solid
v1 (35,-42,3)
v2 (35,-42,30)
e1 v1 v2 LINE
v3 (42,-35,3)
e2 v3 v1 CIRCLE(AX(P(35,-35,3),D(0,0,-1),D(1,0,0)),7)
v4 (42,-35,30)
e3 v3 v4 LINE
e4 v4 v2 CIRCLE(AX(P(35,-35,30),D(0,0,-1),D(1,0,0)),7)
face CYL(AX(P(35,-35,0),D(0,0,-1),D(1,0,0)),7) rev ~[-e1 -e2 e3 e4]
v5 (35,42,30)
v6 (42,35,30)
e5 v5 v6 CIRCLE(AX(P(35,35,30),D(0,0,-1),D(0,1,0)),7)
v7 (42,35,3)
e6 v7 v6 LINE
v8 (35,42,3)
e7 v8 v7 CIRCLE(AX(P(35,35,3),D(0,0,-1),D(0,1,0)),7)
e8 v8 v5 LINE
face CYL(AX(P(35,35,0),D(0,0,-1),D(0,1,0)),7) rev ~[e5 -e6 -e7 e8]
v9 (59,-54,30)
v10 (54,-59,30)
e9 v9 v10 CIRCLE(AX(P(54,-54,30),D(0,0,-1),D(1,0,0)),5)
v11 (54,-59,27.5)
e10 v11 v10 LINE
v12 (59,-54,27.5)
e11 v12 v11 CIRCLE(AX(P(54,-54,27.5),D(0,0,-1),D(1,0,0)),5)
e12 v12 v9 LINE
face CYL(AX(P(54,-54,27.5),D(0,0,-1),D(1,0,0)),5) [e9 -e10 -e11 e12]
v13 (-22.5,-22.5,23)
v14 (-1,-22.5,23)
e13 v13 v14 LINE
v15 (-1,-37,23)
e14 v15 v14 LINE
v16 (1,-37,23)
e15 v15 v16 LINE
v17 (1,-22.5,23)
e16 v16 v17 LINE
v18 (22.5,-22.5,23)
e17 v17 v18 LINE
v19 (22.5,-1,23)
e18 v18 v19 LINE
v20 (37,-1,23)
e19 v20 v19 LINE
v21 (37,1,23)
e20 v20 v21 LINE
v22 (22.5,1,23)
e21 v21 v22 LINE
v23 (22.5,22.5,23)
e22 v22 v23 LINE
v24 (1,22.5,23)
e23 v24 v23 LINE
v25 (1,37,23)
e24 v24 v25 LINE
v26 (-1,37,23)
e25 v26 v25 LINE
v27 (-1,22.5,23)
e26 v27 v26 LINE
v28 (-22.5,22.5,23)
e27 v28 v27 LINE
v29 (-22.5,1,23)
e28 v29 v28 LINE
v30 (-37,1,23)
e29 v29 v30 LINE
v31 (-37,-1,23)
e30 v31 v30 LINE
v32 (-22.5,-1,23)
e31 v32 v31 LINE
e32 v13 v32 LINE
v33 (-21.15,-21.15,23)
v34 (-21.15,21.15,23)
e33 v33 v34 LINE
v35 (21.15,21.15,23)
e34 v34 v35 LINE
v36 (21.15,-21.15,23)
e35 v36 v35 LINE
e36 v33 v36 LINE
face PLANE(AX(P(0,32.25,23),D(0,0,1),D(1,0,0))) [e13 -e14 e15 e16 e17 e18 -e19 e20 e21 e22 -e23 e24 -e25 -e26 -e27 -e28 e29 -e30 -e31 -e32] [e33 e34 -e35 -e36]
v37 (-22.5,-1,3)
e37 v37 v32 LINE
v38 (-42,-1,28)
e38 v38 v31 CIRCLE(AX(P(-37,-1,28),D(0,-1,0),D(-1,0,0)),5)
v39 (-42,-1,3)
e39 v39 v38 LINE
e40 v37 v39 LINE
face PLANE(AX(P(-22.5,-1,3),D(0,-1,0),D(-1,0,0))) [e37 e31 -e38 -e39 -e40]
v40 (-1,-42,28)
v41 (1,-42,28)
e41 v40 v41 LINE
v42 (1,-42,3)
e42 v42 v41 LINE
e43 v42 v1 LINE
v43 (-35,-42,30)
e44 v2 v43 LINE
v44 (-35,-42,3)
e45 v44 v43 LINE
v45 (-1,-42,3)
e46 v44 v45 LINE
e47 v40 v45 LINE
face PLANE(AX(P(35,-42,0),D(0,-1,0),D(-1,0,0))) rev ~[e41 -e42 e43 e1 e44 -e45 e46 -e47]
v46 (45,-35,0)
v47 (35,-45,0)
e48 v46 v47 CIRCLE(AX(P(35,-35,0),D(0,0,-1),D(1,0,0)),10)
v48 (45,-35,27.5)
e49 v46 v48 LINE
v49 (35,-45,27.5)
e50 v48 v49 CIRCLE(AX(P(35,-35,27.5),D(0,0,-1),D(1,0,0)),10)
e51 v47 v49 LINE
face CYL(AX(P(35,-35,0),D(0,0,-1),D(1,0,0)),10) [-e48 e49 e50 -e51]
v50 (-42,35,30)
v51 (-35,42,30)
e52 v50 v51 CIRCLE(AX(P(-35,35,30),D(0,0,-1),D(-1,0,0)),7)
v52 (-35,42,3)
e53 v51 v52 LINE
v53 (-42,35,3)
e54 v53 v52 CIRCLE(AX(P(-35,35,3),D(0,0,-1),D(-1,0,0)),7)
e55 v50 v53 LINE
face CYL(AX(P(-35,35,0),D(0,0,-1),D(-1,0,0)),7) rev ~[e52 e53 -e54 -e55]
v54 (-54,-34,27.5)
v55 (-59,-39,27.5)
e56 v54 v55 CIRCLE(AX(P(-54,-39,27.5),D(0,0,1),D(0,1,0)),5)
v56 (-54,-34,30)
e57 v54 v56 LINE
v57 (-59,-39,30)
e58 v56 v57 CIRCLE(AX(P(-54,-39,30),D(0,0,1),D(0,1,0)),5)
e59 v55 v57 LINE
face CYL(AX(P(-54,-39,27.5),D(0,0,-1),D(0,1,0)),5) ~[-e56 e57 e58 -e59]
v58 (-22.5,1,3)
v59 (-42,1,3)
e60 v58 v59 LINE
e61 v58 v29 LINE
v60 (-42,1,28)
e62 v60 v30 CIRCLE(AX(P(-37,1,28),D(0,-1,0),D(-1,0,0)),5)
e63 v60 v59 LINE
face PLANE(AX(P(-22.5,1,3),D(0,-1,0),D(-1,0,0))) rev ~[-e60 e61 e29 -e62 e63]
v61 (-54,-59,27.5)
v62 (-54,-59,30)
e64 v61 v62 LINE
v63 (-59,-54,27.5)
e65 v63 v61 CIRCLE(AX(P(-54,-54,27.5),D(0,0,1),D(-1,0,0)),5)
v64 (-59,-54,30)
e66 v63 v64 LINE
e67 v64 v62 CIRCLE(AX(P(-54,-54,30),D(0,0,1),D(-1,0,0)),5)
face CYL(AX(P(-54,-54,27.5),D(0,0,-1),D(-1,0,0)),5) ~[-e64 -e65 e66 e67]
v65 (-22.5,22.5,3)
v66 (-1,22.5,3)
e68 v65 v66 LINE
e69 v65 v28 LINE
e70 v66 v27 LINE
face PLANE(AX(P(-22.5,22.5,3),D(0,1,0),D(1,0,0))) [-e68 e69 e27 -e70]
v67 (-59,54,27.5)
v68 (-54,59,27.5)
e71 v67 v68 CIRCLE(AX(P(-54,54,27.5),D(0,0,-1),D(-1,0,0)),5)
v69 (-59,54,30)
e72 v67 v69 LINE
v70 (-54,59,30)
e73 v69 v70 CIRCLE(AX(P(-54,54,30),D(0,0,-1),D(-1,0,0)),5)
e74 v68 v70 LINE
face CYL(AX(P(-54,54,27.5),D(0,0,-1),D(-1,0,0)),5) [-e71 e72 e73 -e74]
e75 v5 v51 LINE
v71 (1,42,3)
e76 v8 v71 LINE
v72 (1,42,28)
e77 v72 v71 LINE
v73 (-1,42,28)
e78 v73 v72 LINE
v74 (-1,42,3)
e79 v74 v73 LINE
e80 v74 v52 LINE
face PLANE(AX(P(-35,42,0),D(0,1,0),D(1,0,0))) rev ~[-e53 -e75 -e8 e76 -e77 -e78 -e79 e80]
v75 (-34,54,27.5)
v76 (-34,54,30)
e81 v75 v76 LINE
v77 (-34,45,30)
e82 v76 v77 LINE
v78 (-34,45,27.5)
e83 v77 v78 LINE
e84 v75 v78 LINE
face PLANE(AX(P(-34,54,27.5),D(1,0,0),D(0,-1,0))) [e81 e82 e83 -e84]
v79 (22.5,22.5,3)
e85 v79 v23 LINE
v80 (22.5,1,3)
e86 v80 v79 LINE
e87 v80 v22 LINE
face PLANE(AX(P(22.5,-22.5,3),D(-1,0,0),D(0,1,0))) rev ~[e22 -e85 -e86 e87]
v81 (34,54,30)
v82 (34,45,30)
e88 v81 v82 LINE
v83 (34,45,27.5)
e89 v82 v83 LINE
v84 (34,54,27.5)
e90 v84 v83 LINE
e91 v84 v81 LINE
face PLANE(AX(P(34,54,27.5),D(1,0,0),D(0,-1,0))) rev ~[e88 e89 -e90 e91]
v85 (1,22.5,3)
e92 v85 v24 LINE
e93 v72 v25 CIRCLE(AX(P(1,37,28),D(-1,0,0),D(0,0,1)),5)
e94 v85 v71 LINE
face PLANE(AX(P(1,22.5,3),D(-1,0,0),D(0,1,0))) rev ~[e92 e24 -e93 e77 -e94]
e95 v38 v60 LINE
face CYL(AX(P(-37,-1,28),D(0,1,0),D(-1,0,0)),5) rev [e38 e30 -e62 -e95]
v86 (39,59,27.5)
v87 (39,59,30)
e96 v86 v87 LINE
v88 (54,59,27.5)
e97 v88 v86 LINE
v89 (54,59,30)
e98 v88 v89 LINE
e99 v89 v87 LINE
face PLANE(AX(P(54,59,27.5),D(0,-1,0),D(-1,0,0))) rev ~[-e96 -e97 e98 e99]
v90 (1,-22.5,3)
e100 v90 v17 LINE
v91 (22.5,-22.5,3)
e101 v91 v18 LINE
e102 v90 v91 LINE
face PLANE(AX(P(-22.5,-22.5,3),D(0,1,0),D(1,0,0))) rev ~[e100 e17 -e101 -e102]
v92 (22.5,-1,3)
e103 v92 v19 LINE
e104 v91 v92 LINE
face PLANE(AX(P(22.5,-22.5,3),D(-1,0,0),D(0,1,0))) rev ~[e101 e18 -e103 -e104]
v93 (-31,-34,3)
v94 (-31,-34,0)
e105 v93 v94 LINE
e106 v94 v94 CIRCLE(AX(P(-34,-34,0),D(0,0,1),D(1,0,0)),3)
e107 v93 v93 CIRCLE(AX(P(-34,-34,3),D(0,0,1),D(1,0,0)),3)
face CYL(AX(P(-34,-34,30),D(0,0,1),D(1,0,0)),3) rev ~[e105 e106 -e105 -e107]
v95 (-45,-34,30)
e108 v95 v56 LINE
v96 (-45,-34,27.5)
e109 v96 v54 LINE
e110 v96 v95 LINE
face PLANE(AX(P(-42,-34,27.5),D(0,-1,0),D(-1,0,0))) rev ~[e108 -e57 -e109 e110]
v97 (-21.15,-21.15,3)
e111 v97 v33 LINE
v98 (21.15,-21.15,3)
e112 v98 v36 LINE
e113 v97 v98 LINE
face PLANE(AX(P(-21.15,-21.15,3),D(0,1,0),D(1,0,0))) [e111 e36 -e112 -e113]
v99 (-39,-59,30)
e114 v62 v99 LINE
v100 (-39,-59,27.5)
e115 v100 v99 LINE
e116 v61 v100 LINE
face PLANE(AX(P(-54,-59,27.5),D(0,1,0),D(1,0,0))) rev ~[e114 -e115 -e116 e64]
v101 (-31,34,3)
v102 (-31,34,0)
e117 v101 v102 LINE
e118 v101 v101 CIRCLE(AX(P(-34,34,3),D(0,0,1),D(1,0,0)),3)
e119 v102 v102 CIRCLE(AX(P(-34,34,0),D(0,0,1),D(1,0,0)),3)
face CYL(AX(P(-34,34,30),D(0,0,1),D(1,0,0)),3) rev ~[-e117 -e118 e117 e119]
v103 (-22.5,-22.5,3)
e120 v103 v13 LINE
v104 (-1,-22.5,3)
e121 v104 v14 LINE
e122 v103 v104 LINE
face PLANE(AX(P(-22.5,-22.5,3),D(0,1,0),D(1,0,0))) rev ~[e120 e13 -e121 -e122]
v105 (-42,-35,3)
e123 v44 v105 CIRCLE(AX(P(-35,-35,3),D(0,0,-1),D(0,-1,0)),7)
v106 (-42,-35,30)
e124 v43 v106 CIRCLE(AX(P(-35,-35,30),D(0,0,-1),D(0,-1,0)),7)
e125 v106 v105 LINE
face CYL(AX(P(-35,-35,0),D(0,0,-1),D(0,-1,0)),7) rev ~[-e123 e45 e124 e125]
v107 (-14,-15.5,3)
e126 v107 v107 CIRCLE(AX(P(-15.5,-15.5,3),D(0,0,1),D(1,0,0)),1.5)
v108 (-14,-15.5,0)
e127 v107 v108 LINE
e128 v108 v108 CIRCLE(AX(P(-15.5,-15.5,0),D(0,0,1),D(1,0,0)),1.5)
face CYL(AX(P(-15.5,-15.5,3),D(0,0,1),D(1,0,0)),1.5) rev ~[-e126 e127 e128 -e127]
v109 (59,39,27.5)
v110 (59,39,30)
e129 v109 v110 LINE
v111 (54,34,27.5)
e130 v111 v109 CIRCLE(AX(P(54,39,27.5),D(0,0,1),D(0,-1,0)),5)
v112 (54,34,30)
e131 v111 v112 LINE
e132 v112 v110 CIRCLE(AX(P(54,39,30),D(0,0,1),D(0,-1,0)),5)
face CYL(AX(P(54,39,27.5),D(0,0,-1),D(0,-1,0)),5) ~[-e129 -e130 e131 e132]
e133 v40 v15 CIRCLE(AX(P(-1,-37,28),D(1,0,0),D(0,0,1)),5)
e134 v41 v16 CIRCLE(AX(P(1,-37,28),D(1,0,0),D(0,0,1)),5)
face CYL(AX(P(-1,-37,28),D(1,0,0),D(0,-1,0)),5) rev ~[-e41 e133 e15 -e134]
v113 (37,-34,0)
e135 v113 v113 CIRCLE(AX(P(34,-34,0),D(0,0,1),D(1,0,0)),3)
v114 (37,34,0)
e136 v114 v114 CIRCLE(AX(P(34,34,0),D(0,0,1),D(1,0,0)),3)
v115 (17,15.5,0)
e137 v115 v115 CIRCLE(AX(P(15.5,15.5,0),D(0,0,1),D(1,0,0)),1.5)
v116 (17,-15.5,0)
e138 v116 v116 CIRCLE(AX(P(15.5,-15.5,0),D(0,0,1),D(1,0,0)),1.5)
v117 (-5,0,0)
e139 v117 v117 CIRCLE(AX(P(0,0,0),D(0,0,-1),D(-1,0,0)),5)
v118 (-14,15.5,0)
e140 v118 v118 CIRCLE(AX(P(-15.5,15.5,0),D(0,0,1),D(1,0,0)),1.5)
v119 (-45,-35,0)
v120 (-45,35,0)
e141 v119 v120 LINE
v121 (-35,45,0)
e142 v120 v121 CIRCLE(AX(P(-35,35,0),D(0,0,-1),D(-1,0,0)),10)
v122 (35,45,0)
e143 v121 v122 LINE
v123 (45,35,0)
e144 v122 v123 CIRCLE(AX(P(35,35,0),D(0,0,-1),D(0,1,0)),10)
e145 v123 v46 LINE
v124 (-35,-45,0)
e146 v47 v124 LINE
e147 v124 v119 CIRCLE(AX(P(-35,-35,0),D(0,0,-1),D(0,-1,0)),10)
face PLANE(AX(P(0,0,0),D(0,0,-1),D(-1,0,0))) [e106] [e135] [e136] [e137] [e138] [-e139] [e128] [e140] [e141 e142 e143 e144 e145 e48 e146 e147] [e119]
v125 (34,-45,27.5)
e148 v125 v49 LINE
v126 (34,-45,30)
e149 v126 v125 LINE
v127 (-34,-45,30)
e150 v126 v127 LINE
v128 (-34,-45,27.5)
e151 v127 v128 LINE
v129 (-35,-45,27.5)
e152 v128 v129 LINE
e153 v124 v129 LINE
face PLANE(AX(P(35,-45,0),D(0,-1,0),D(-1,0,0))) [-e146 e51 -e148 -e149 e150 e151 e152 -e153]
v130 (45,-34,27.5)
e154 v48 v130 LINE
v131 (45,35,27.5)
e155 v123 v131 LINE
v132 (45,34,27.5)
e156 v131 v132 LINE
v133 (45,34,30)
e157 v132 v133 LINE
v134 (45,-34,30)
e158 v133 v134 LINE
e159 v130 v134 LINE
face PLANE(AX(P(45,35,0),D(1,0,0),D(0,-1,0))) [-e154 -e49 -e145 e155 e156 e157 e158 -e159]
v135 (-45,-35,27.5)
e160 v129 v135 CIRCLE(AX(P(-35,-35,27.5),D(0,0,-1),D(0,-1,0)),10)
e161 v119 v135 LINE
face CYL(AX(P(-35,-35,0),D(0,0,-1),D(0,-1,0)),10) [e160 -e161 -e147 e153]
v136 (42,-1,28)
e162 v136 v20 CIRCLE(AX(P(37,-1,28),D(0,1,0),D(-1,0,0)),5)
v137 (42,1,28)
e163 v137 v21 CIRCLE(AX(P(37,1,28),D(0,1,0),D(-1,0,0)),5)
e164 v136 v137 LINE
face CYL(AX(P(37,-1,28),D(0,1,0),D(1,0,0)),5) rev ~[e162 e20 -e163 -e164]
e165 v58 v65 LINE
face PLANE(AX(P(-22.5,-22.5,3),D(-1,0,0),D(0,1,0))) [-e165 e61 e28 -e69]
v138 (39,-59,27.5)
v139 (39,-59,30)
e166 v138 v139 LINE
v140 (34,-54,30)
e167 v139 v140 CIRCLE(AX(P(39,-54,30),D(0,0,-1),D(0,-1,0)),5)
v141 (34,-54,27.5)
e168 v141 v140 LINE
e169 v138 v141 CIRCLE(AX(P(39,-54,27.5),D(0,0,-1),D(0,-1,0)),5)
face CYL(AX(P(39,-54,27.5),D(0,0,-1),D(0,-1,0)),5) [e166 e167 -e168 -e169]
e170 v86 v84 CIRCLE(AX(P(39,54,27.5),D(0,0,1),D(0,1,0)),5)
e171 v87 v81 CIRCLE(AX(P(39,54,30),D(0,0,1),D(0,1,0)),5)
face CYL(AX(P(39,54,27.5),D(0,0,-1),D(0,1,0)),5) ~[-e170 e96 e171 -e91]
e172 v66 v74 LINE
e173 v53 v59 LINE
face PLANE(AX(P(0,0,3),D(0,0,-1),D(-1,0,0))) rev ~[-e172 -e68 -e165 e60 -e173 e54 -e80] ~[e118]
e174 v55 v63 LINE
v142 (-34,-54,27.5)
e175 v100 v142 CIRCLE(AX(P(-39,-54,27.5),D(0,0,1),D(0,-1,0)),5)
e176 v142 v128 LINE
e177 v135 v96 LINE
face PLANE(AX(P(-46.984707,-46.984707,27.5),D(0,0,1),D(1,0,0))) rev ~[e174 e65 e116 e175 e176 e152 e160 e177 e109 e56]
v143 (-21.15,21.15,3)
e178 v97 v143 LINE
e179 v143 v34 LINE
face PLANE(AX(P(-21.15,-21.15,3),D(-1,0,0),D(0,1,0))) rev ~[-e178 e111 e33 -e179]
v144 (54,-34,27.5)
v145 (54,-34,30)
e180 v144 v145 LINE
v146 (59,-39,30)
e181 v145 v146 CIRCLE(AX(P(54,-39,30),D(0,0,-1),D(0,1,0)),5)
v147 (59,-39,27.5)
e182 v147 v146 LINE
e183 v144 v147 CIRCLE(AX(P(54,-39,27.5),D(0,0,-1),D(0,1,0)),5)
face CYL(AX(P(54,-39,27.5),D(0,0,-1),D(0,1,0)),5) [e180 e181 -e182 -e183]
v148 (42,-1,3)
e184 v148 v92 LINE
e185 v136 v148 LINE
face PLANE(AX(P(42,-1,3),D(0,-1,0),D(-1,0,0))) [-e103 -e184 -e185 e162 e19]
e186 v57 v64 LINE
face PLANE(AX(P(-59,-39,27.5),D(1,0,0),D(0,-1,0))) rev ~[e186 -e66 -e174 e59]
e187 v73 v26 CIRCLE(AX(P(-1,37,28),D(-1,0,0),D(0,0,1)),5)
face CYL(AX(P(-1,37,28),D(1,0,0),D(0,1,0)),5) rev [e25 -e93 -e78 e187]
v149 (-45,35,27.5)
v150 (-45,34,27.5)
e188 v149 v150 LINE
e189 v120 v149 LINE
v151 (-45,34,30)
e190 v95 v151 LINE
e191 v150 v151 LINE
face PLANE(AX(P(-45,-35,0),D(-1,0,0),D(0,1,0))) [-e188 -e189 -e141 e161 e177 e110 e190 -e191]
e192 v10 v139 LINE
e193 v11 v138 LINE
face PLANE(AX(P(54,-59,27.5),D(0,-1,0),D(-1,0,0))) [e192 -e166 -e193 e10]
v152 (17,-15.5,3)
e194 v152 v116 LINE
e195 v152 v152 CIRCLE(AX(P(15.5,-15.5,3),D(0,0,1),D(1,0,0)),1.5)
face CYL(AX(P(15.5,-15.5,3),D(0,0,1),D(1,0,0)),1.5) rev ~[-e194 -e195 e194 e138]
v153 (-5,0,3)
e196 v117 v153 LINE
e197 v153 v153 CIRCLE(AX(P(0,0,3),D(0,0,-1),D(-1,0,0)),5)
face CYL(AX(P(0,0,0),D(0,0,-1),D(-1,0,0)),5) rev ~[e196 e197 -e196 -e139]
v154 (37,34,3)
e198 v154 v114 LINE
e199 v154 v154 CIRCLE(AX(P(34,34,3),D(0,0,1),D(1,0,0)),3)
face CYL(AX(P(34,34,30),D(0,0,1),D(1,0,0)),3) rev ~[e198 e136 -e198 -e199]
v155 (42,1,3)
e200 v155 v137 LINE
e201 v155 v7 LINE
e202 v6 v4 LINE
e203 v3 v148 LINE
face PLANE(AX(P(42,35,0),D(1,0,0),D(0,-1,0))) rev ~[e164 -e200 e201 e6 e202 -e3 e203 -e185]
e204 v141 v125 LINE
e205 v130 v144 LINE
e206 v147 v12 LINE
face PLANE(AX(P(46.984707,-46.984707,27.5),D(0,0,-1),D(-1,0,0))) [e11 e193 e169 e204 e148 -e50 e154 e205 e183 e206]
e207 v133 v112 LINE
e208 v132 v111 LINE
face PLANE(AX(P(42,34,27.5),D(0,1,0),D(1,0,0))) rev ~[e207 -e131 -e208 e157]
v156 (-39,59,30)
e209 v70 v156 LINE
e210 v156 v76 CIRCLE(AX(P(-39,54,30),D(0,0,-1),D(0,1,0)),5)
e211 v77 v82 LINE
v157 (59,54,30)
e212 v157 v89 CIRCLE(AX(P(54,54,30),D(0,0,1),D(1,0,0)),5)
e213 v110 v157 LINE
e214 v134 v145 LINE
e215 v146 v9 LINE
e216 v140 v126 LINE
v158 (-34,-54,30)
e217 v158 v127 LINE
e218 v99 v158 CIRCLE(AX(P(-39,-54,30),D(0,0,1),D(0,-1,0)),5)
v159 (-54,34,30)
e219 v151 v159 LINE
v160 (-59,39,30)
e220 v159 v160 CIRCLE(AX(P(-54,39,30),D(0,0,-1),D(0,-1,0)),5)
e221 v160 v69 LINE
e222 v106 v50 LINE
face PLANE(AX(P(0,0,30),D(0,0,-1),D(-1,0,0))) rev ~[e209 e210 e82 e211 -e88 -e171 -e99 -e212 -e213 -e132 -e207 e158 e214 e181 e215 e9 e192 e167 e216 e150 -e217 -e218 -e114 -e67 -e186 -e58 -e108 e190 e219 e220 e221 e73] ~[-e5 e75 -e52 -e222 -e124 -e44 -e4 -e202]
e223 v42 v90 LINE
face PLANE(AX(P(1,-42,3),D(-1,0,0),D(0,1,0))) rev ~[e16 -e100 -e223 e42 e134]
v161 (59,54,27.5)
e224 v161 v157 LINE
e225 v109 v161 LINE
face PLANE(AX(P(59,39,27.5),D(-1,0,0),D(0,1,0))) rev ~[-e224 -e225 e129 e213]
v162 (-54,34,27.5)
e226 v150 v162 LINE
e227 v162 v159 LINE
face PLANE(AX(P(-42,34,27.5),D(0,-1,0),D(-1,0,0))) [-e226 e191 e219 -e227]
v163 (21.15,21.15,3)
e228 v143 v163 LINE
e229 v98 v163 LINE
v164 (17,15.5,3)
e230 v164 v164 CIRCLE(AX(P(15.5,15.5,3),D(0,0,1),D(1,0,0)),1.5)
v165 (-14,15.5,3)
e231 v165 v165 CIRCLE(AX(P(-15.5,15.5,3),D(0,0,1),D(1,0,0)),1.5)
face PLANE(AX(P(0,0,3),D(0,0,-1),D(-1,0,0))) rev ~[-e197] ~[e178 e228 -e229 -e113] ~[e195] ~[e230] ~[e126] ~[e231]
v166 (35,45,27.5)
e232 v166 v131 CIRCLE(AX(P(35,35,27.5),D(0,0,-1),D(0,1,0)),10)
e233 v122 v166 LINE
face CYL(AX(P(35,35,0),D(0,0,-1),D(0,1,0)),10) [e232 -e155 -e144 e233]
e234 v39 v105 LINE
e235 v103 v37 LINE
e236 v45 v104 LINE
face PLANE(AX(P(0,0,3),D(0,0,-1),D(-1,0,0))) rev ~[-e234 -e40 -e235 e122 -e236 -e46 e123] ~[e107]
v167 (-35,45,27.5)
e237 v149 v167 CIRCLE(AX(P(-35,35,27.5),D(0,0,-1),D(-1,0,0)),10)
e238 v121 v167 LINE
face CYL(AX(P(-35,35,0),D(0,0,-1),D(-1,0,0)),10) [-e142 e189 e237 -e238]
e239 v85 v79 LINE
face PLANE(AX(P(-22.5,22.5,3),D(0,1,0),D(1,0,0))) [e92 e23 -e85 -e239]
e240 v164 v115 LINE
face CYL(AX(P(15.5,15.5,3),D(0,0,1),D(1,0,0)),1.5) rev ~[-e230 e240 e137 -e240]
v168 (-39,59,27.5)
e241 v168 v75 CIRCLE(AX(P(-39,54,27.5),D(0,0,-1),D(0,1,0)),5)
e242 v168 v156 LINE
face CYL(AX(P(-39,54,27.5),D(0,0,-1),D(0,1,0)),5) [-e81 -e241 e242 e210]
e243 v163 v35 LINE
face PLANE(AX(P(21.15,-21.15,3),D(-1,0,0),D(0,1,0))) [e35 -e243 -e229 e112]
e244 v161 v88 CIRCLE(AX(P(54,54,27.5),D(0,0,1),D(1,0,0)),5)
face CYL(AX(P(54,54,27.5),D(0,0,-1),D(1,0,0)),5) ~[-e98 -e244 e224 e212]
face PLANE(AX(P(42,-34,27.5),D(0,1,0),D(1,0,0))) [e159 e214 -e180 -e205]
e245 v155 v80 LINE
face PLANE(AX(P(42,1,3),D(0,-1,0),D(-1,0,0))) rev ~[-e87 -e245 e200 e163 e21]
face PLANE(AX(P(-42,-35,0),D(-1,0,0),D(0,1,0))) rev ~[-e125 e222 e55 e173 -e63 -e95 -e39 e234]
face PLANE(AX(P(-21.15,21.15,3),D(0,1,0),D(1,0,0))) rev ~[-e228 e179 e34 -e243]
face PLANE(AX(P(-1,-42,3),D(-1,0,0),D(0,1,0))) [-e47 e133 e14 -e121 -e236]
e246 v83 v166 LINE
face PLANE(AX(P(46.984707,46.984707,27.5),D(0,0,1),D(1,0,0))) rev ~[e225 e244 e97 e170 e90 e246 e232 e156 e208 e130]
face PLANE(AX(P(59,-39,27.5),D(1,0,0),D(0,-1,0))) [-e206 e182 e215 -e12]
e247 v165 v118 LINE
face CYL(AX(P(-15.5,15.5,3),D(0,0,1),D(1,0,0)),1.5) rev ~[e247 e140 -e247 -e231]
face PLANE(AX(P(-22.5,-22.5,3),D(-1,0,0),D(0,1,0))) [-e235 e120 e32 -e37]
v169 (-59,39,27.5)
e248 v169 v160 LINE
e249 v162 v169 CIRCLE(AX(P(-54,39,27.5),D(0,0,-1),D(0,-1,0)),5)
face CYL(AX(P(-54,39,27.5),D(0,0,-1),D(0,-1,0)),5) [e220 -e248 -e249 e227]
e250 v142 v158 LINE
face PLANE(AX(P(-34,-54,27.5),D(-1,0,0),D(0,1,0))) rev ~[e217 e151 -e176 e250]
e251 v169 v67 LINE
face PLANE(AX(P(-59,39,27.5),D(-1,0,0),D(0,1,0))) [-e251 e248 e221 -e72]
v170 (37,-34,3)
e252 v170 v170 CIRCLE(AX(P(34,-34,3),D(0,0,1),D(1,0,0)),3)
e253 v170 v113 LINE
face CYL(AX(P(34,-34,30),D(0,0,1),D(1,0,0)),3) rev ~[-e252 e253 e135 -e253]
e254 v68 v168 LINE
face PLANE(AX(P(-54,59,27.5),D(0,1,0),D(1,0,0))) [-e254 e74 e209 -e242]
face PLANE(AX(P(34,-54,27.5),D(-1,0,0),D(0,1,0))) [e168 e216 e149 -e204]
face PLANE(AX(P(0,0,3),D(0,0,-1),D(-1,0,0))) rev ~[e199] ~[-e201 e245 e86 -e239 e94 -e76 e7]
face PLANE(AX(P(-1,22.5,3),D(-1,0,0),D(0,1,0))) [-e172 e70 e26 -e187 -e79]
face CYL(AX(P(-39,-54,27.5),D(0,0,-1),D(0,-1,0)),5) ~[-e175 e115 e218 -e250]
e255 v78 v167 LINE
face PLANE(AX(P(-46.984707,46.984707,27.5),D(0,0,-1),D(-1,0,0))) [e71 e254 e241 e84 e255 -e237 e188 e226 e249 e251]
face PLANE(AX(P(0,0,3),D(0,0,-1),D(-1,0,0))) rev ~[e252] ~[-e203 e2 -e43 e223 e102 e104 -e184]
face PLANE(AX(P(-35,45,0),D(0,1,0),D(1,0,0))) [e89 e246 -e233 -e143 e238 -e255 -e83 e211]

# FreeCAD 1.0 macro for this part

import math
import FreeCAD as App
import Part
import Sketcher
Q = App.Units.Quantity


def edges_at(feature, points):
    """Names of the edges that pass closest to the given points."""
    edges = feature.Shape.Edges
    near = lambda p: min(range(len(edges)), key=lambda i: edges[i].distToShape(Part.Vertex(*p))[0])
    return sorted({f"Edge{near(p) + 1}" for p in points})


def faces_at(feature, points):
    """Names of the faces that lie closest to the given points."""
    faces = feature.Shape.Faces
    near = lambda p: min(range(len(faces)), key=lambda i: faces[i].distToShape(Part.Vertex(*p))[0])
    return sorted({f"Face{near(p) + 1}" for p in points})


def add_polygon(sketch, points):
    """Adds a closed chain of lines whose ends are joined by coincident constraints."""
    first, n = sketch.GeometryCount, len(points)
    for a, b in zip(points, points[1:] + points[:1]):
        sketch.addGeometry(Part.LineSegment(App.Vector(*a, 0), App.Vector(*b, 0)), False)
    for i in range(n):
        sketch.addConstraint(Sketcher.Constraint("Coincident", first + i, 2, first + (i + 1) % n, 1))

doc = App.newDocument("Part")
body = doc.addObject("PartDesign::Body", "Body")

# Sketch on XY plane
sketch1 = doc.addObject("Sketcher::SketchObject", "Sketch")
body.addObject(sketch1)
sketch1.AttachmentSupport = (doc.XY_Plane, [""])
sketch1.MapMode = "FlatFace"
sketch1.addGeometry(Part.LineSegment(App.Vector(35, 45, 0), App.Vector(-35, 45, 0)), False)
sketch1.addGeometry(Part.ArcOfCircle(Part.Circle(App.Vector(-35, 35, 0), App.Vector(0, 0, 1), 10), math.radians(90), math.radians(180)), False)
sketch1.addGeometry(Part.LineSegment(App.Vector(-45, 35, 0), App.Vector(-45, -35, 0)), False)
sketch1.addGeometry(Part.ArcOfCircle(Part.Circle(App.Vector(-35, -35, 0), App.Vector(0, 0, 1), 10), math.radians(180), math.radians(270)), False)
sketch1.addGeometry(Part.LineSegment(App.Vector(-35, -45, 0), App.Vector(35, -45, 0)), False)
sketch1.addGeometry(Part.ArcOfCircle(Part.Circle(App.Vector(35, -35, 0), App.Vector(0, 0, 1), 10), math.radians(-90), math.radians(0)), False)
sketch1.addGeometry(Part.LineSegment(App.Vector(45, -35, 0), App.Vector(45, 35, 0)), False)
sketch1.addGeometry(Part.ArcOfCircle(Part.Circle(App.Vector(35, 35, 0), App.Vector(0, 0, 1), 10), math.radians(0), math.radians(90)), False)
sketch1.addConstraint(Sketcher.Constraint("Tangent", 0, 2, 1, 1))
sketch1.addConstraint(Sketcher.Constraint("Tangent", 1, 2, 2, 1))
sketch1.addConstraint(Sketcher.Constraint("Tangent", 2, 2, 3, 1))
sketch1.addConstraint(Sketcher.Constraint("Tangent", 3, 2, 4, 1))
sketch1.addConstraint(Sketcher.Constraint("Tangent", 4, 2, 5, 1))
sketch1.addConstraint(Sketcher.Constraint("Tangent", 5, 2, 6, 1))
sketch1.addConstraint(Sketcher.Constraint("Tangent", 6, 2, 7, 1))
sketch1.addConstraint(Sketcher.Constraint("Tangent", 7, 2, 0, 1))
sketch1.addConstraint(Sketcher.Constraint("Horizontal", 0))
sketch1.addConstraint(Sketcher.Constraint("Vertical", 2))
sketch1.addConstraint(Sketcher.Constraint("Horizontal", 4))
sketch1.addConstraint(Sketcher.Constraint("Vertical", 6))
sketch1.addConstraint(Sketcher.Constraint("Equal", 1, 3))
sketch1.addConstraint(Sketcher.Constraint("Equal", 3, 5))
sketch1.addConstraint(Sketcher.Constraint("Equal", 5, 7))
sketch1.addConstraint(Sketcher.Constraint("Symmetric", 1, 3, 5, 3, -1, 1))
sketch1.addConstraint(Sketcher.Constraint("Equal", 4, 2))
sketch1.addConstraint(Sketcher.Constraint("Radius", 1, Q("10 mm")))
sketch1.addConstraint(Sketcher.Constraint("DistanceX", 0, 2, 0, 1, Q("70 mm")))
pad1 = doc.addObject("PartDesign::Pad", "Pad")
body.addObject(pad1)
pad1.Profile = sketch1
pad1.Length = 30
doc.recompute()

thickness = doc.addObject("PartDesign::Thickness", "Thickness")
body.addObject(thickness)
thickness.Base = (pad1, faces_at(pad1, [(0, 0, 30)]))
thickness.Value = 3
thickness.Reversed = True
thickness.Join = "Intersection"

# Sketch on XY plane
sketch2 = doc.addObject("Sketcher::SketchObject", "Sketch001")
body.addObject(sketch2)
sketch2.AttachmentSupport = (doc.XY_Plane, [""])
sketch2.MapMode = "FlatFace"
sketch2.AttachmentOffset = App.Placement(App.Vector(0, 0, 30), App.Rotation())
sketch2.addGeometry(Part.Circle(App.Vector(-34, 34, 0), App.Vector(0, 0, 1), 3), False)
sketch2.addConstraint(Sketcher.Constraint("Diameter", 0, Q("6 mm")))
sketch2.addConstraint(Sketcher.Constraint("DistanceX", 0, 3, -1, 1, Q("34 mm")))
sketch2.addConstraint(Sketcher.Constraint("DistanceY", -1, 1, 0, 3, Q("34 mm")))
pocket1 = doc.addObject("PartDesign::Pocket", "Pocket")
body.addObject(pocket1)
pocket1.Profile = sketch2
pocket1.Length = 30

# Sketch on XY plane
sketch3 = doc.addObject("Sketcher::SketchObject", "Sketch002")
body.addObject(sketch3)
sketch3.AttachmentSupport = (doc.XY_Plane, [""])
sketch3.MapMode = "FlatFace"
sketch3.AttachmentOffset = App.Placement(App.Vector(0, 0, 30), App.Rotation())
sketch3.addGeometry(Part.Circle(App.Vector(34, 34, 0), App.Vector(0, 0, 1), 3), False)
sketch3.addConstraint(Sketcher.Constraint("Diameter", 0, Q("6 mm")))
sketch3.addConstraint(Sketcher.Constraint("DistanceX", -1, 1, 0, 3, Q("34 mm")))
sketch3.addConstraint(Sketcher.Constraint("DistanceY", -1, 1, 0, 3, Q("34 mm")))
pocket2 = doc.addObject("PartDesign::Pocket", "Pocket001")
body.addObject(pocket2)
pocket2.Profile = sketch3
pocket2.Length = 30

# Sketch on XY plane
sketch4 = doc.addObject("Sketcher::SketchObject", "Sketch003")
body.addObject(sketch4)
sketch4.AttachmentSupport = (doc.XY_Plane, [""])
sketch4.MapMode = "FlatFace"
sketch4.AttachmentOffset = App.Placement(App.Vector(0, 0, 30), App.Rotation())
sketch4.addGeometry(Part.Circle(App.Vector(34, -34, 0), App.Vector(0, 0, 1), 3), False)
sketch4.addConstraint(Sketcher.Constraint("Diameter", 0, Q("6 mm")))
sketch4.addConstraint(Sketcher.Constraint("DistanceX", -1, 1, 0, 3, Q("34 mm")))
sketch4.addConstraint(Sketcher.Constraint("DistanceY", 0, 3, -1, 1, Q("34 mm")))
pocket3 = doc.addObject("PartDesign::Pocket", "Pocket002")
body.addObject(pocket3)
pocket3.Profile = sketch4
pocket3.Length = 30

# Sketch on XY plane
sketch5 = doc.addObject("Sketcher::SketchObject", "Sketch004")
body.addObject(sketch5)
sketch5.AttachmentSupport = (doc.XY_Plane, [""])
sketch5.MapMode = "FlatFace"
sketch5.AttachmentOffset = App.Placement(App.Vector(0, 0, 30), App.Rotation())
sketch5.addGeometry(Part.Circle(App.Vector(-34, -34, 0), App.Vector(0, 0, 1), 3), False)
sketch5.addConstraint(Sketcher.Constraint("Diameter", 0, Q("6 mm")))
sketch5.addConstraint(Sketcher.Constraint("DistanceX", 0, 3, -1, 1, Q("34 mm")))
sketch5.addConstraint(Sketcher.Constraint("DistanceY", 0, 3, -1, 1, Q("34 mm")))
pocket4 = doc.addObject("PartDesign::Pocket", "Pocket003")
body.addObject(pocket4)
pocket4.Profile = sketch5
pocket4.Length = 30

# Sketch on XY plane
sketch6 = doc.addObject("Sketcher::SketchObject", "Sketch005")
body.addObject(sketch6)
sketch6.AttachmentSupport = (doc.XY_Plane, [""])
sketch6.MapMode = "FlatFace"
sketch6.AttachmentOffset = App.Placement(App.Vector(0, 0, 3), App.Rotation())
add_polygon(sketch6, [(-22, 22), (-22, -22), (22, -22), (22, 22)])  # lines 0-3
add_polygon(sketch6, [(21, -21), (-21, -21), (-21, 21), (21, 21)])  # lines 4-7
sketch6.addConstraint(Sketcher.Constraint("Vertical", 0))
sketch6.addConstraint(Sketcher.Constraint("Horizontal", 1))
sketch6.addConstraint(Sketcher.Constraint("Vertical", 2))
sketch6.addConstraint(Sketcher.Constraint("Horizontal", 3))
sketch6.addConstraint(Sketcher.Constraint("Horizontal", 4))
sketch6.addConstraint(Sketcher.Constraint("Vertical", 5))
sketch6.addConstraint(Sketcher.Constraint("Horizontal", 6))
sketch6.addConstraint(Sketcher.Constraint("Vertical", 7))
sketch6.addConstraint(Sketcher.Constraint("Symmetric", 0, 2, 2, 2, -1, 1))
sketch6.addConstraint(Sketcher.Constraint("Symmetric", 4, 2, 6, 2, -1, 1))
sketch6.addConstraint(Sketcher.Constraint("Equal", 3, 0))
sketch6.addConstraint(Sketcher.Constraint("Equal", 6, 5))
sketch6.addConstraint(Sketcher.Constraint("DistanceX", 1, 1, 1, 2, Q("45 mm")))
sketch6.addConstraint(Sketcher.Constraint("DistanceX", 4, 2, 4, 1, Q("42.3 mm")))
pad2 = doc.addObject("PartDesign::Pad", "Pad001")
body.addObject(pad2)
pad2.Profile = sketch6
pad2.Length = 20

# Sketch on XY plane
sketch7 = doc.addObject("Sketcher::SketchObject", "Sketch006")
body.addObject(sketch7)
sketch7.AttachmentSupport = (doc.XY_Plane, [""])
sketch7.MapMode = "FlatFace"
sketch7.AttachmentOffset = App.Placement(App.Vector(0, 0, 3), App.Rotation())
sketch7.addGeometry(Part.Circle(App.Vector(-15.5, -15.5, 0), App.Vector(0, 0, 1), 1.5), False)
sketch7.addGeometry(Part.Circle(App.Vector(15.5, -15.5, 0), App.Vector(0, 0, 1), 1.5), False)
sketch7.addGeometry(Part.Circle(App.Vector(15.5, 15.5, 0), App.Vector(0, 0, 1), 1.5), False)
sketch7.addGeometry(Part.Circle(App.Vector(-15.5, 15.5, 0), App.Vector(0, 0, 1), 1.5), False)
sketch7.addConstraint(Sketcher.Constraint("Equal", 0, 1))
sketch7.addConstraint(Sketcher.Constraint("Equal", 1, 2))
sketch7.addConstraint(Sketcher.Constraint("Equal", 2, 3))
sketch7.addConstraint(Sketcher.Constraint("Symmetric", 0, 3, 2, 3, -1, 1))
sketch7.addConstraint(Sketcher.Constraint("Symmetric", 1, 3, 3, 3, -1, 1))
sketch7.addConstraint(Sketcher.Constraint("Symmetric", 0, 3, 1, 3, -2))
sketch7.addConstraint(Sketcher.Constraint("Diameter", 0, Q("3 mm")))
sketch7.addConstraint(Sketcher.Constraint("DistanceX", 0, 3, 1, 3, Q("31 mm")))
sketch7.addConstraint(Sketcher.Constraint("DistanceY", 1, 3, 2, 3, Q("31 mm")))
pocket5 = doc.addObject("PartDesign::Pocket", "Pocket004")
body.addObject(pocket5)
pocket5.Profile = sketch7
pocket5.Type = "ThroughAll"

# Sketch on XY plane
sketch8 = doc.addObject("Sketcher::SketchObject", "Sketch007")
body.addObject(sketch8)
sketch8.AttachmentSupport = (doc.XY_Plane, [""])
sketch8.MapMode = "FlatFace"
sketch8.AttachmentOffset = App.Placement(App.Vector(0, 0, 3), App.Rotation())
add_polygon(sketch8, [(-1, 42), (-1, 22.5), (1, 22.5), (1, 42)])  # lines 0-3
add_polygon(sketch8, [(-1, -22.5), (-1, -42), (1, -42), (1, -22.5)])  # lines 4-7
sketch8.addConstraint(Sketcher.Constraint("Vertical", 0))
sketch8.addConstraint(Sketcher.Constraint("Horizontal", 1))
sketch8.addConstraint(Sketcher.Constraint("Vertical", 2))
sketch8.addConstraint(Sketcher.Constraint("Horizontal", 3))
sketch8.addConstraint(Sketcher.Constraint("Vertical", 4))
sketch8.addConstraint(Sketcher.Constraint("Horizontal", 5))
sketch8.addConstraint(Sketcher.Constraint("Vertical", 6))
sketch8.addConstraint(Sketcher.Constraint("Horizontal", 7))
sketch8.addConstraint(Sketcher.Constraint("Symmetric", 2, 2, 4, 2, -1, 1))
sketch8.addConstraint(Sketcher.Constraint("Symmetric", 0, 2, 6, 2, -1, 1))
sketch8.addConstraint(Sketcher.Constraint("Vertical", 3, 2, 4, 2))
sketch8.addConstraint(Sketcher.Constraint("DistanceX", 1, 1, 1, 2, Q("2 mm")))
sketch8.addConstraint(Sketcher.Constraint("DistanceY", 0, 2, 0, 1, Q("19.5 mm")))
sketch8.addConstraint(Sketcher.Constraint("DistanceY", -1, 1, 2, 2, Q("42 mm")))
pad3 = doc.addObject("PartDesign::Pad", "Pad002")
body.addObject(pad3)
pad3.Profile = sketch8
pad3.Length = 20
doc.recompute()

polarpattern = doc.addObject("PartDesign::PolarPattern", "PolarPattern")
body.addObject(polarpattern)
polarpattern.Originals = [pad3]
polarpattern.Axis = (doc.Z_Axis, [""])
polarpattern.Angle = 90
polarpattern.Occurrences = 2
body.Tip = polarpattern

# Sketch on XY plane
sketch9 = doc.addObject("Sketcher::SketchObject", "Sketch008")
body.addObject(sketch9)
sketch9.AttachmentSupport = (doc.XY_Plane, [""])
sketch9.MapMode = "FlatFace"
sketch9.addGeometry(Part.Circle(App.Vector(0, 0, 0), App.Vector(0, 0, 1), 5), False)
sketch9.addConstraint(Sketcher.Constraint("Coincident", 0, 3, -1, 1))
sketch9.addConstraint(Sketcher.Constraint("Diameter", 0, Q("10 mm")))
pocket6 = doc.addObject("PartDesign::Pocket", "Pocket005")
body.addObject(pocket6)
pocket6.Profile = sketch9
pocket6.Type = "ThroughAll"
pocket6.Reversed = True
doc.recompute()

fillet = doc.addObject("PartDesign::Fillet", "Fillet")
body.addObject(fillet)
fillet.Base = (pocket6, edges_at(pocket6, [
    (0, 42, 23),
    (0, -42, 23),
    (-42, 0, 23),
    (42, 0, 23),
]))
fillet.Radius = 5

# Sketch on XY plane
sketch10 = doc.addObject("Sketcher::SketchObject", "Sketch009")
body.addObject(sketch10)
sketch10.AttachmentSupport = (doc.XY_Plane, [""])
sketch10.MapMode = "FlatFace"
sketch10.AttachmentOffset = App.Placement(App.Vector(0, 0, 27.5), App.Rotation())
sketch10.addGeometry(Part.LineSegment(App.Vector(34, 42, 0), App.Vector(35, 42, 0)), False)
sketch10.addGeometry(Part.ArcOfCircle(Part.Circle(App.Vector(35, 35, 0), App.Vector(0, 0, 1), 7), math.radians(0), math.radians(90)), False)
sketch10.addGeometry(Part.LineSegment(App.Vector(42, 35, 0), App.Vector(42, 34, 0)), False)
sketch10.addGeometry(Part.LineSegment(App.Vector(42, 34, 0), App.Vector(54, 34, 0)), False)
sketch10.addGeometry(Part.ArcOfCircle(Part.Circle(App.Vector(54, 39, 0), App.Vector(0, 0, 1), 5), math.radians(-90), math.radians(0)), False)
sketch10.addGeometry(Part.LineSegment(App.Vector(59, 39, 0), App.Vector(59, 54, 0)), False)
sketch10.addGeometry(Part.ArcOfCircle(Part.Circle(App.Vector(54, 54, 0), App.Vector(0, 0, 1), 5), math.radians(0), math.radians(90)), False)
sketch10.addGeometry(Part.LineSegment(App.Vector(54, 59, 0), App.Vector(39, 59, 0)), False)
sketch10.addGeometry(Part.ArcOfCircle(Part.Circle(App.Vector(39, 54, 0), App.Vector(0, 0, 1), 5), math.radians(90), math.radians(180)), False)
sketch10.addGeometry(Part.LineSegment(App.Vector(34, 54, 0), App.Vector(34, 42, 0)), False)
sketch10.addGeometry(Part.LineSegment(App.Vector(54, -34, 0), App.Vector(42, -34, 0)), False)
sketch10.addGeometry(Part.LineSegment(App.Vector(42, -34, 0), App.Vector(42, -35, 0)), False)
sketch10.addGeometry(Part.ArcOfCircle(Part.Circle(App.Vector(35, -35, 0), App.Vector(0, 0, 1), 7), math.radians(-90), math.radians(0)), False)
sketch10.addGeometry(Part.LineSegment(App.Vector(35, -42, 0), App.Vector(34, -42, 0)), False)
sketch10.addGeometry(Part.LineSegment(App.Vector(34, -42, 0), App.Vector(34, -54, 0)), False)
sketch10.addGeometry(Part.ArcOfCircle(Part.Circle(App.Vector(39, -54, 0), App.Vector(0, 0, 1), 5), math.radians(180), math.radians(270)), False)
sketch10.addGeometry(Part.LineSegment(App.Vector(39, -59, 0), App.Vector(54, -59, 0)), False)
sketch10.addGeometry(Part.ArcOfCircle(Part.Circle(App.Vector(54, -54, 0), App.Vector(0, 0, 1), 5), math.radians(-90), math.radians(0)), False)
sketch10.addGeometry(Part.LineSegment(App.Vector(59, -54, 0), App.Vector(59, -39, 0)), False)
sketch10.addGeometry(Part.ArcOfCircle(Part.Circle(App.Vector(54, -39, 0), App.Vector(0, 0, 1), 5), math.radians(0), math.radians(90)), False)
sketch10.addGeometry(Part.LineSegment(App.Vector(-42, -35, 0), App.Vector(-42, -34, 0)), False)
sketch10.addGeometry(Part.LineSegment(App.Vector(-42, -34, 0), App.Vector(-54, -34, 0)), False)
sketch10.addGeometry(Part.ArcOfCircle(Part.Circle(App.Vector(-54, -39, 0), App.Vector(0, 0, 1), 5), math.radians(90), math.radians(180)), False)
sketch10.addGeometry(Part.LineSegment(App.Vector(-59, -39, 0), App.Vector(-59, -54, 0)), False)
sketch10.addGeometry(Part.ArcOfCircle(Part.Circle(App.Vector(-54, -54, 0), App.Vector(0, 0, 1), 5), math.radians(180), math.radians(270)), False)
sketch10.addGeometry(Part.LineSegment(App.Vector(-54, -59, 0), App.Vector(-39, -59, 0)), False)
sketch10.addGeometry(Part.ArcOfCircle(Part.Circle(App.Vector(-39, -54, 0), App.Vector(0, 0, 1), 5), math.radians(-90), math.radians(0)), False)
sketch10.addGeometry(Part.LineSegment(App.Vector(-34, -54, 0), App.Vector(-34, -42, 0)), False)
sketch10.addGeometry(Part.LineSegment(App.Vector(-34, -42, 0), App.Vector(-35, -42, 0)), False)
sketch10.addGeometry(Part.ArcOfCircle(Part.Circle(App.Vector(-35, -35, 0), App.Vector(0, 0, 1), 7), math.radians(-180), math.radians(-90)), False)
sketch10.addGeometry(Part.LineSegment(App.Vector(-42, 34, 0), App.Vector(-42, 35, 0)), False)
sketch10.addGeometry(Part.ArcOfCircle(Part.Circle(App.Vector(-35, 35, 0), App.Vector(0, 0, 1), 7), math.radians(90), math.radians(180)), False)
sketch10.addGeometry(Part.LineSegment(App.Vector(-35, 42, 0), App.Vector(-34, 42, 0)), False)
sketch10.addGeometry(Part.LineSegment(App.Vector(-34, 42, 0), App.Vector(-34, 54, 0)), False)
sketch10.addGeometry(Part.ArcOfCircle(Part.Circle(App.Vector(-39, 54, 0), App.Vector(0, 0, 1), 5), math.radians(0), math.radians(90)), False)
sketch10.addGeometry(Part.LineSegment(App.Vector(-39, 59, 0), App.Vector(-54, 59, 0)), False)
sketch10.addGeometry(Part.ArcOfCircle(Part.Circle(App.Vector(-54, 54, 0), App.Vector(0, 0, 1), 5), math.radians(90), math.radians(180)), False)
sketch10.addGeometry(Part.LineSegment(App.Vector(-59, 54, 0), App.Vector(-59, 39, 0)), False)
sketch10.addGeometry(Part.ArcOfCircle(Part.Circle(App.Vector(-54, 39, 0), App.Vector(0, 0, 1), 5), math.radians(180), math.radians(270)), False)
sketch10.addGeometry(Part.LineSegment(App.Vector(-54, 34, 0), App.Vector(-42, 34, 0)), False)
sketch10.addConstraint(Sketcher.Constraint("Tangent", 0, 2, 1, 2))
sketch10.addConstraint(Sketcher.Constraint("Tangent", 1, 1, 2, 1))
sketch10.addConstraint(Sketcher.Constraint("Coincident", 2, 2, 3, 1))
sketch10.addConstraint(Sketcher.Constraint("Tangent", 3, 2, 4, 1))
sketch10.addConstraint(Sketcher.Constraint("Tangent", 4, 2, 5, 1))
sketch10.addConstraint(Sketcher.Constraint("Tangent", 5, 2, 6, 1))
sketch10.addConstraint(Sketcher.Constraint("Tangent", 6, 2, 7, 1))
sketch10.addConstraint(Sketcher.Constraint("Tangent", 7, 2, 8, 1))
sketch10.addConstraint(Sketcher.Constraint("Tangent", 8, 2, 9, 1))
sketch10.addConstraint(Sketcher.Constraint("Coincident", 9, 2, 0, 1))
sketch10.addConstraint(Sketcher.Constraint("Coincident", 10, 2, 11, 1))
sketch10.addConstraint(Sketcher.Constraint("Tangent", 11, 2, 12, 2))
sketch10.addConstraint(Sketcher.Constraint("Tangent", 12, 1, 13, 1))
sketch10.addConstraint(Sketcher.Constraint("Coincident", 13, 2, 14, 1))
sketch10.addConstraint(Sketcher.Constraint("Tangent", 14, 2, 15, 1))
sketch10.addConstraint(Sketcher.Constraint("Tangent", 15, 2, 16, 1))
sketch10.addConstraint(Sketcher.Constraint("Tangent", 16, 2, 17, 1))
sketch10.addConstraint(Sketcher.Constraint("Tangent", 17, 2, 18, 1))
sketch10.addConstraint(Sketcher.Constraint("Tangent", 18, 2, 19, 1))
sketch10.addConstraint(Sketcher.Constraint("Tangent", 19, 2, 10, 1))
sketch10.addConstraint(Sketcher.Constraint("Coincident", 20, 2, 21, 1))
sketch10.addConstraint(Sketcher.Constraint("Tangent", 21, 2, 22, 1))
sketch10.addConstraint(Sketcher.Constraint("Tangent", 22, 2, 23, 1))
sketch10.addConstraint(Sketcher.Constraint("Tangent", 23, 2, 24, 1))
sketch10.addConstraint(Sketcher.Constraint("Tangent", 24, 2, 25, 1))
sketch10.addConstraint(Sketcher.Constraint("Tangent", 25, 2, 26, 1))
sketch10.addConstraint(Sketcher.Constraint("Tangent", 26, 2, 27, 1))
sketch10.addConstraint(Sketcher.Constraint("Coincident", 27, 2, 28, 1))
sketch10.addConstraint(Sketcher.Constraint("Tangent", 28, 2, 29, 2))
sketch10.addConstraint(Sketcher.Constraint("Tangent", 29, 1, 20, 1))
sketch10.addConstraint(Sketcher.Constraint("Tangent", 30, 2, 31, 2))
sketch10.addConstraint(Sketcher.Constraint("Tangent", 31, 1, 32, 1))
sketch10.addConstraint(Sketcher.Constraint("Coincident", 32, 2, 33, 1))
sketch10.addConstraint(Sketcher.Constraint("Tangent", 33, 2, 34, 1))
sketch10.addConstraint(Sketcher.Constraint("Tangent", 34, 2, 35, 1))
sketch10.addConstraint(Sketcher.Constraint("Tangent", 35, 2, 36, 1))
sketch10.addConstraint(Sketcher.Constraint("Tangent", 36, 2, 37, 1))
sketch10.addConstraint(Sketcher.Constraint("Tangent", 37, 2, 38, 1))
sketch10.addConstraint(Sketcher.Constraint("Tangent", 38, 2, 39, 1))
sketch10.addConstraint(Sketcher.Constraint("Coincident", 39, 2, 30, 1))
sketch10.addConstraint(Sketcher.Constraint("Horizontal", 0))
sketch10.addConstraint(Sketcher.Constraint("Vertical", 2))
sketch10.addConstraint(Sketcher.Constraint("Horizontal", 3))
sketch10.addConstraint(Sketcher.Constraint("Vertical", 5))
sketch10.addConstraint(Sketcher.Constraint("Horizontal", 7))
sketch10.addConstraint(Sketcher.Constraint("Vertical", 9))
sketch10.addConstraint(Sketcher.Constraint("Horizontal", 10))
sketch10.addConstraint(Sketcher.Constraint("Vertical", 11))
sketch10.addConstraint(Sketcher.Constraint("Horizontal", 13))
sketch10.addConstraint(Sketcher.Constraint("Vertical", 14))
sketch10.addConstraint(Sketcher.Constraint("Horizontal", 16))
sketch10.addConstraint(Sketcher.Constraint("Vertical", 18))
sketch10.addConstraint(Sketcher.Constraint("Vertical", 20))
sketch10.addConstraint(Sketcher.Constraint("Horizontal", 21))
sketch10.addConstraint(Sketcher.Constraint("Vertical", 23))
sketch10.addConstraint(Sketcher.Constraint("Horizontal", 25))
sketch10.addConstraint(Sketcher.Constraint("Vertical", 27))
sketch10.addConstraint(Sketcher.Constraint("Horizontal", 28))
sketch10.addConstraint(Sketcher.Constraint("Vertical", 30))
sketch10.addConstraint(Sketcher.Constraint("Horizontal", 32))
sketch10.addConstraint(Sketcher.Constraint("Vertical", 33))
sketch10.addConstraint(Sketcher.Constraint("Horizontal", 35))
sketch10.addConstraint(Sketcher.Constraint("Vertical", 37))
sketch10.addConstraint(Sketcher.Constraint("Horizontal", 39))
sketch10.addConstraint(Sketcher.Constraint("Equal", 4, 6))
sketch10.addConstraint(Sketcher.Constraint("Equal", 6, 8))
sketch10.addConstraint(Sketcher.Constraint("Equal", 1, 12))
sketch10.addConstraint(Sketcher.Constraint("Equal", 8, 15))
sketch10.addConstraint(Sketcher.Constraint("Equal", 15, 17))
sketch10.addConstraint(Sketcher.Constraint("Equal", 17, 19))
sketch10.addConstraint(Sketcher.Constraint("Equal", 19, 22))
sketch10.addConstraint(Sketcher.Constraint("Equal", 22, 24))
sketch10.addConstraint(Sketcher.Constraint("Equal", 24, 26))
sketch10.addConstraint(Sketcher.Constraint("Equal", 12, 29))
sketch10.addConstraint(Sketcher.Constraint("Equal", 29, 31))
sketch10.addConstraint(Sketcher.Constraint("Equal", 26, 34))
sketch10.addConstraint(Sketcher.Constraint("Equal", 34, 36))
sketch10.addConstraint(Sketcher.Constraint("Equal", 36, 38))
sketch10.addConstraint(Sketcher.Constraint("Symmetric", 4, 3, 22, 3, -1, 1))
sketch10.addConstraint(Sketcher.Constraint("Symmetric", 8, 3, 26, 3, -1, 1))
sketch10.addConstraint(Sketcher.Constraint("Symmetric", 1, 3, 29, 3, -1, 1))
sketch10.addConstraint(Sketcher.Constraint("Symmetric", 12, 3, 31, 3, -1, 1))
sketch10.addConstraint(Sketcher.Constraint("Symmetric", 15, 3, 34, 3, -1, 1))
sketch10.addConstraint(Sketcher.Constraint("Symmetric", 19, 3, 38, 3, -1, 1))
sketch10.addConstraint(Sketcher.Constraint("Symmetric", 19, 3, 22, 3, -2))
sketch10.addConstraint(Sketcher.Constraint("Symmetric", 15, 3, 26, 3, -2))
sketch10.addConstraint(Sketcher.Constraint("Symmetric", 12, 3, 29, 3, -2))
sketch10.addConstraint(Sketcher.Constraint("Equal", 32, 2))
sketch10.addConstraint(Sketcher.Constraint("Equal", 35, 5))
sketch10.addConstraint(Sketcher.Constraint("Radius", 1, Q("7 mm")))
sketch10.addConstraint(Sketcher.Constraint("Radius", 4, Q("5 mm")))
sketch10.addConstraint(Sketcher.Constraint("DistanceX", 0, 1, 0, 2, Q("1 mm")))
sketch10.addConstraint(Sketcher.Constraint("DistanceX", 3, 1, 3, 2, Q("12 mm")))
sketch10.addConstraint(Sketcher.Constraint("DistanceX", -1, 1, 1, 3, Q("35 mm")))
sketch10.addConstraint(Sketcher.Constraint("DistanceY", -1, 1, 1, 3, Q("35 mm")))
pad4 = doc.addObject("PartDesign::Pad", "Pad003")
body.addObject(pad4)
pad4.Profile = sketch10
pad4.Length = 2.5

doc.recompute()
